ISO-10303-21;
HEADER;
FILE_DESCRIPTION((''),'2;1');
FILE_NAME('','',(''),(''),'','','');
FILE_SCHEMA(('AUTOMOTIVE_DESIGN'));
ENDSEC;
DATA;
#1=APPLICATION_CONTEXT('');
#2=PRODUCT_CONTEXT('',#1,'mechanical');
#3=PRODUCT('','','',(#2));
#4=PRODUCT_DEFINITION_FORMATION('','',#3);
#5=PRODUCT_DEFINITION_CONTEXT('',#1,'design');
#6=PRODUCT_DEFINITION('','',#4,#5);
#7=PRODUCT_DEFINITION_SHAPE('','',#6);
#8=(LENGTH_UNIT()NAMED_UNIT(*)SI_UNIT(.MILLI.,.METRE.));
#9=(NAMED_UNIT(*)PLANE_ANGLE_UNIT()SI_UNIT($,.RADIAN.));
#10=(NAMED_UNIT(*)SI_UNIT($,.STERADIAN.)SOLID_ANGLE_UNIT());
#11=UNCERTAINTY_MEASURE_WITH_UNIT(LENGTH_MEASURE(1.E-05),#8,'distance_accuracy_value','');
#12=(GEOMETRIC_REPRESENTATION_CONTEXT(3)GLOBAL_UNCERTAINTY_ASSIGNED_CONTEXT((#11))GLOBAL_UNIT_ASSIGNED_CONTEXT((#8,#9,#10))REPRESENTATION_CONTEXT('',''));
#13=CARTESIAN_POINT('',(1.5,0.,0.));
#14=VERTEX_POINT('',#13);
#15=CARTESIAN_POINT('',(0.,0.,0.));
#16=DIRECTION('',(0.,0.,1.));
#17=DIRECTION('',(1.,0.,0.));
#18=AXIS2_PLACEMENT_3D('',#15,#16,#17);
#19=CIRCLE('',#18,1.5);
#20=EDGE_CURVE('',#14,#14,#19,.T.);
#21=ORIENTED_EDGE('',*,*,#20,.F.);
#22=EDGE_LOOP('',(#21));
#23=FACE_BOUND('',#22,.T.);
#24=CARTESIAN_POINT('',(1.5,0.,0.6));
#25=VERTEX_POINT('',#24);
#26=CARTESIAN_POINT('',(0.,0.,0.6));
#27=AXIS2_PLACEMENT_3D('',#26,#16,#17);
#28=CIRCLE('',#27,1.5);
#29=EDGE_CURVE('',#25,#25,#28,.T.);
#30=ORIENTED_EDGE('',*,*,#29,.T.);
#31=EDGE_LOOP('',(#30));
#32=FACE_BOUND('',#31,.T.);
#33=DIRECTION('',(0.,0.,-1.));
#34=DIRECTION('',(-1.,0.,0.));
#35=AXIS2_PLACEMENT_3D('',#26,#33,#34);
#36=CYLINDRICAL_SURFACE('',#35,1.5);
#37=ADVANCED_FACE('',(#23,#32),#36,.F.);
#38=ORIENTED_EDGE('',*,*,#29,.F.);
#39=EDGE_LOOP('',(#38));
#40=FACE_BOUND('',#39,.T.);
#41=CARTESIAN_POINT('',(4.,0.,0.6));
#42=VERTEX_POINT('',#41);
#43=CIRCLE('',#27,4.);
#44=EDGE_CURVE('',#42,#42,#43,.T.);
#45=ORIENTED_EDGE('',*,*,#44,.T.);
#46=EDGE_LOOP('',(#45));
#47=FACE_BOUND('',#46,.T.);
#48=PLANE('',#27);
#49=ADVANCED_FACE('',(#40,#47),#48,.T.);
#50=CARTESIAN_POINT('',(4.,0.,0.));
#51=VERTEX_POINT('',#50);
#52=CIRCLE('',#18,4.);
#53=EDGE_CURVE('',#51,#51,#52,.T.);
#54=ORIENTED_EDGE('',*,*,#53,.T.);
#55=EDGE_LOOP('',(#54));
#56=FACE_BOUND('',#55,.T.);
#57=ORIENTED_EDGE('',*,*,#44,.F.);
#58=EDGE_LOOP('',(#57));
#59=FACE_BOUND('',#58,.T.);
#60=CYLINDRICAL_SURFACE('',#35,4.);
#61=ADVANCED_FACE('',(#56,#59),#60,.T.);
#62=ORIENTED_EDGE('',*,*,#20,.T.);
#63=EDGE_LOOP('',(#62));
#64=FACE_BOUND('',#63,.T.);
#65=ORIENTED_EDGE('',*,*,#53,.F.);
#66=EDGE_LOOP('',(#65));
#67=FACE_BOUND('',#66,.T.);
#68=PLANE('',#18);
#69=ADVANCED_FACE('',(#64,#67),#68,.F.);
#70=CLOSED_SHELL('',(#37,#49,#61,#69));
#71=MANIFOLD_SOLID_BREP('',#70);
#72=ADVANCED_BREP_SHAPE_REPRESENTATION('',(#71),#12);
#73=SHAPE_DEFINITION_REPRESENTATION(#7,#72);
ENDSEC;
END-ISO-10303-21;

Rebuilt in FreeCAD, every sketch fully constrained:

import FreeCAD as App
import Part
import Sketcher

doc = App.newDocument("Part")
params = doc.addObject("Spreadsheet::Sheet", "Params")
for row, (alias, value) in enumerate([
    ("sketch1_diameter", "8 mm"),
    ("sketch1_diameter2", "3 mm"),
    ("pad1_length", "0.6 mm"),
], start=1):
    params.set(f"A{row}", alias)
    params.set(f"B{row}", "=" + value)
    params.setAlias(f"B{row}", alias)

body = doc.addObject("PartDesign::Body", "Body")

# Sketch on XY plane
sketch1 = body.newObject("Sketcher::SketchObject", "Sketch")
sketch1.AttachmentSupport = (doc.getObject("XY_Plane"), [""])
sketch1.MapMode = "FlatFace"
sketch1.addGeometry([
    Part.Circle(App.Vector(0, 0, 0), App.Vector(0, 0, 1), 4),
    Part.Circle(App.Vector(0, 0, 0), App.Vector(0, 0, 1), 1.5),
], False)
sketch1.addConstraint([
    Sketcher.Constraint("Coincident", 0, 3, -1, 1),
    Sketcher.Constraint("Coincident", 1, 3, -1, 1),
    Sketcher.Constraint("Diameter", 0, 8.0),
    Sketcher.Constraint("Diameter", 1, 3.0),
])
sketch1.setExpression("Constraints[2]", "Params.sketch1_diameter")
sketch1.setExpression("Constraints[3]", "Params.sketch1_diameter2")
pad1 = body.newObject("PartDesign::Pad", "Pad")
pad1.Profile = sketch1
pad1.setExpression("Length", "Params.pad1_length")

doc.recompute()
